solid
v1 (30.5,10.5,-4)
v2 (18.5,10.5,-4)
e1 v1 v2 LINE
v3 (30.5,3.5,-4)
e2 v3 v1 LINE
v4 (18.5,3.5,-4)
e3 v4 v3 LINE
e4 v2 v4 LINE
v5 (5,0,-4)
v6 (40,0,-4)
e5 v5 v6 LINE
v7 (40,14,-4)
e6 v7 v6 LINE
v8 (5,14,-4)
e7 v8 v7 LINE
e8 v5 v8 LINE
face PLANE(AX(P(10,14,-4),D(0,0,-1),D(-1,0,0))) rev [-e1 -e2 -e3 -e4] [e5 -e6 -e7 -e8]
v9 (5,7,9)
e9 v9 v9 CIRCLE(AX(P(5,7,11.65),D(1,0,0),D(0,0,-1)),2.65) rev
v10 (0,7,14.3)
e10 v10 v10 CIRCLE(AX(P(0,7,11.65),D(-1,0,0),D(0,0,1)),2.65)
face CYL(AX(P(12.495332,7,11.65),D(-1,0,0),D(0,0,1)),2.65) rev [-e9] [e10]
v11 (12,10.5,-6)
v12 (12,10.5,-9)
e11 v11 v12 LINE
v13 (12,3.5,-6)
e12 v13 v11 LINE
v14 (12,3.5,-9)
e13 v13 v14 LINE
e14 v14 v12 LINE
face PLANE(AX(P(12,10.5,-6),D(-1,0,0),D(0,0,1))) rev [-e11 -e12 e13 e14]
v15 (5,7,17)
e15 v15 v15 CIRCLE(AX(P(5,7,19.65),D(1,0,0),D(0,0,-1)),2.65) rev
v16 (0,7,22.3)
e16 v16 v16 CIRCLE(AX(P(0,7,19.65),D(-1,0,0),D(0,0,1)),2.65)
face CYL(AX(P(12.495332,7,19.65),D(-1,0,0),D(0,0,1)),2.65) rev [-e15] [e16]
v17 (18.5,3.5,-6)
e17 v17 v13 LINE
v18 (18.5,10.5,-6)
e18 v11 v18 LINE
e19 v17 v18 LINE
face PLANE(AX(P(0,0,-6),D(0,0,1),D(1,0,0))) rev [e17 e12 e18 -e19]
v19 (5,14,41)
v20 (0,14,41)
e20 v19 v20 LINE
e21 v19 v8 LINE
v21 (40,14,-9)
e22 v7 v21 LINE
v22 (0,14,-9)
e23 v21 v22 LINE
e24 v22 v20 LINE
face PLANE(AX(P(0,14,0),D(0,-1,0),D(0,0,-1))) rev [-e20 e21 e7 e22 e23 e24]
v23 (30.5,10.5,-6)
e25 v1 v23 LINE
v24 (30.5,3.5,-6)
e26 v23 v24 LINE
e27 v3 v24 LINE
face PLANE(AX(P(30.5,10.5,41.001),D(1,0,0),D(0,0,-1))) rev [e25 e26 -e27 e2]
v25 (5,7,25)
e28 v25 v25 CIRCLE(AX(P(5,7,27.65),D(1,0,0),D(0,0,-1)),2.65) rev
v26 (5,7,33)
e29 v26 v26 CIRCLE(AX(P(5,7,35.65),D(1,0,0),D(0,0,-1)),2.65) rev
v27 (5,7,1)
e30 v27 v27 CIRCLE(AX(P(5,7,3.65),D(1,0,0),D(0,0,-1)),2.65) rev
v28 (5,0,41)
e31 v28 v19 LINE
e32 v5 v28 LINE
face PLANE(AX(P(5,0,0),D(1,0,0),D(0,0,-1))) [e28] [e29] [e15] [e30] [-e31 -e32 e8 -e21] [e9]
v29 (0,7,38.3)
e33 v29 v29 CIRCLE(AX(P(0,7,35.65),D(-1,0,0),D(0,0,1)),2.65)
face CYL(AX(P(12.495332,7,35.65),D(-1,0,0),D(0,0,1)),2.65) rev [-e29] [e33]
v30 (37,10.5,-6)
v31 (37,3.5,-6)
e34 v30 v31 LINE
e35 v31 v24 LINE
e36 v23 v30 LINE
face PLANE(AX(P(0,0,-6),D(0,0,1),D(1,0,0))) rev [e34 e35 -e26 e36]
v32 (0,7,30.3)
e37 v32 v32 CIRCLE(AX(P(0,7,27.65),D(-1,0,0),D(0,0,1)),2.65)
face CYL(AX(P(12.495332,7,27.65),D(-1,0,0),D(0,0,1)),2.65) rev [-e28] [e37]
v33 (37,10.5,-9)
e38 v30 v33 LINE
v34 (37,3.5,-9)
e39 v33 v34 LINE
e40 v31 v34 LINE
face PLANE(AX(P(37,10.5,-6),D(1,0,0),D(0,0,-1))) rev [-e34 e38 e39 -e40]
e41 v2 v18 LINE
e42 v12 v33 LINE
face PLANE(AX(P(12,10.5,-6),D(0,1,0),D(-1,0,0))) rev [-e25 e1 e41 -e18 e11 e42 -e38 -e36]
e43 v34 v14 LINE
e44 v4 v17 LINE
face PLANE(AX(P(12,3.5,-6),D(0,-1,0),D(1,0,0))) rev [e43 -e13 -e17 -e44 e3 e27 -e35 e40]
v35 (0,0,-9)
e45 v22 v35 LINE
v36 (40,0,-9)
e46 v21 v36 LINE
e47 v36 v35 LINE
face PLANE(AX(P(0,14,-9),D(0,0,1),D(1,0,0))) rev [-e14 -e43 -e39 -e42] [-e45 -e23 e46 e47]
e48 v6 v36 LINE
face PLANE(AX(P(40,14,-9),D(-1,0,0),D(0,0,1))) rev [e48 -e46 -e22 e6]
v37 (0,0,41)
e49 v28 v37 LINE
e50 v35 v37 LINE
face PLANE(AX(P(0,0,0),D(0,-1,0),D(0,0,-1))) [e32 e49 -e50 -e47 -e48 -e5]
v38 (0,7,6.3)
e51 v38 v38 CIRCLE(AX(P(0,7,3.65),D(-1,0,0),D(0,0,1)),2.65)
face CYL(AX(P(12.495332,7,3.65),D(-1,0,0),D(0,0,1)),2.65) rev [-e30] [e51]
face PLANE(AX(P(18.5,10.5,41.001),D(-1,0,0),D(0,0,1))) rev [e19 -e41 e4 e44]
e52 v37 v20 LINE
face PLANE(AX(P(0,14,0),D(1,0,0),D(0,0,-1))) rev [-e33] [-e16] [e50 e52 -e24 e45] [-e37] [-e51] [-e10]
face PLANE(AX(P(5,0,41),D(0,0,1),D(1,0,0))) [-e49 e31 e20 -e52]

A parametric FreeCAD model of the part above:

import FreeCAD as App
import Part
import Sketcher
Q = App.Units.Quantity

doc = App.newDocument("Part")
body = doc.addObject("PartDesign::Body", "Body")

# Sketch on XZ plane
sketch1 = body.newObject("Sketcher::SketchObject", "Sketch")
sketch1.AttachmentSupport = (doc.getObject("XZ_Plane"), [""])
sketch1.MapMode = "FlatFace"
sketch1.addGeometry([
    Part.LineSegment(App.Vector(10, 0, 0), App.Vector(10, -4, 0)),  # 0
    Part.LineSegment(App.Vector(10, -4, 0), App.Vector(40, -4, 0)),  # 1
    Part.LineSegment(App.Vector(40, -4, 0), App.Vector(40, -9, 0)),  # 2
    Part.LineSegment(App.Vector(40, -9, 0), App.Vector(0, -9, 0)),  # 3
    Part.LineSegment(App.Vector(0, -9, 0), App.Vector(0, 0, 0)),  # 4
    Part.LineSegment(App.Vector(0, 0, 0), App.Vector(10, 0, 0)),  # 5
], False)
sketch1.addConstraint([
    Sketcher.Constraint("Coincident", 0, 2, 1, 1),
    Sketcher.Constraint("Coincident", 1, 2, 2, 1),
    Sketcher.Constraint("Coincident", 2, 2, 3, 1),
    Sketcher.Constraint("Coincident", 3, 2, 4, 1),
    Sketcher.Constraint("Coincident", 4, 2, 5, 1),
    Sketcher.Constraint("Coincident", 5, 2, 0, 1),
    Sketcher.Constraint("Vertical", 0),
    Sketcher.Constraint("Horizontal", 1),
    Sketcher.Constraint("Vertical", 2),
    Sketcher.Constraint("Horizontal", 3),
    Sketcher.Constraint("Vertical", 4),
    Sketcher.Constraint("Horizontal", 5),
    Sketcher.Constraint("Coincident", 4, 2, -1, 1),
    Sketcher.Constraint("DistanceX", 1, 1, 1, 2, Q("30 mm")),
    Sketcher.Constraint("DistanceX", 3, 2, 3, 1, Q("40 mm")),
    Sketcher.Constraint("DistanceY", 0, 2, 0, 1, Q("4 mm")),
    Sketcher.Constraint("DistanceY", 2, 2, 2, 1, Q("5 mm")),
])
pad1 = body.newObject("PartDesign::Pad", "Pad")
pad1.Profile = sketch1
pad1.Length = 14
pad1.Reversed = True

# Sketch on YZ plane
sketch2 = body.newObject("Sketcher::SketchObject", "Sketch001")
sketch2.AttachmentSupport = (doc.getObject("YZ_Plane"), [""])
sketch2.MapMode = "FlatFace"
sketch2.addGeometry([
    Part.LineSegment(App.Vector(14, 0, 0), App.Vector(0, 0, 0)),
    Part.LineSegment(App.Vector(0, 0, 0), App.Vector(0, 41, 0)),
    Part.LineSegment(App.Vector(0, 41, 0), App.Vector(14, 41, 0)),
    Part.LineSegment(App.Vector(14, 41, 0), App.Vector(14, 0, 0)),
], False)
sketch2.addConstraint([
    Sketcher.Constraint("Coincident", 0, 2, 1, 1),
    Sketcher.Constraint("Coincident", 1, 2, 2, 1),
    Sketcher.Constraint("Coincident", 2, 2, 3, 1),
    Sketcher.Constraint("Coincident", 3, 2, 0, 1),
    Sketcher.Constraint("Horizontal", 0),
    Sketcher.Constraint("Vertical", 1),
    Sketcher.Constraint("Horizontal", 2),
    Sketcher.Constraint("Vertical", 3),
    Sketcher.Constraint("Coincident", 0, 2, -1, 1),
    Sketcher.Constraint("DistanceX", 0, 2, 0, 1, Q("14 mm")),
    Sketcher.Constraint("DistanceY", 1, 1, 1, 2, Q("41 mm")),
])
pad2 = body.newObject("PartDesign::Pad", "Pad001")
pad2.Profile = sketch2
pad2.Length = 5

# Sketch on YZ plane
sketch3 = body.newObject("Sketcher::SketchObject", "Sketch002")
sketch3.AttachmentSupport = (doc.getObject("YZ_Plane"), [""])
sketch3.MapMode = "FlatFace"
sketch3.addGeometry([
    Part.Circle(App.Vector(7, -4.3, 0), App.Vector(0, 0, 1), 2.6),  # 0
    Part.Circle(App.Vector(7, 3.6, 0), App.Vector(0, 0, 1), 2.6),  # 1
    Part.Circle(App.Vector(7, 11.7, 0), App.Vector(0, 0, 1), 2.6),  # 2
    Part.Circle(App.Vector(7, 19.6, 0), App.Vector(0, 0, 1), 2.6),  # 3
    Part.Circle(App.Vector(7, 27.6, 0), App.Vector(0, 0, 1), 2.6),  # 4
    Part.Circle(App.Vector(7, 35.6, 0), App.Vector(0, 0, 1), 2.6),  # 5
], False)
sketch3.addConstraint([
    Sketcher.Constraint("Equal", 0, 1),
    Sketcher.Constraint("Equal", 1, 2),
    Sketcher.Constraint("Equal", 2, 3),
    Sketcher.Constraint("Equal", 3, 4),
    Sketcher.Constraint("Equal", 4, 5),
    Sketcher.Constraint("Vertical", 0, 3, 1, 3),
    Sketcher.Constraint("Vertical", 1, 3, 2, 3),
    Sketcher.Constraint("Vertical", 2, 3, 3, 3),
    Sketcher.Constraint("Vertical", 3, 3, 4, 3),
    Sketcher.Constraint("Vertical", 4, 3, 5, 3),
    Sketcher.Constraint("Diameter", 0, Q("5.3 mm")),
    Sketcher.Constraint("DistanceX", -1, 1, 0, 3, Q("7 mm")),
    Sketcher.Constraint("DistanceY", 0, 3, 1, 3, Q("8 mm")),
    Sketcher.Constraint("DistanceY", 1, 3, 2, 3, Q("8 mm")),
    Sketcher.Constraint("DistanceY", 2, 3, 3, 3, Q("8 mm")),
    Sketcher.Constraint("DistanceY", 3, 3, 4, 3, Q("8 mm")),
    Sketcher.Constraint("DistanceY", 4, 3, 5, 3, Q("8 mm")),
    Sketcher.Constraint("DistanceY", 0, 3, -1, 1, Q("4.35 mm")),
])
pocket1 = body.newObject("PartDesign::Pocket", "Pocket")
pocket1.Profile = sketch3
pocket1.Length = 5
pocket1.Reversed = True

# Sketch on XZ plane
sketch4 = body.newObject("Sketcher::SketchObject", "Sketch003")
sketch4.AttachmentSupport = (doc.getObject("XZ_Plane"), [""])
sketch4.MapMode = "FlatFace"
sketch4.AttachmentOffset = App.Placement(App.Vector(0, 0, -14), App.Rotation())
sketch4.addGeometry([
    Part.LineSegment(App.Vector(5, -4, 0), App.Vector(5, 0, 0)),
    Part.LineSegment(App.Vector(5, 0, 0), App.Vector(10, 0, 0)),
    Part.LineSegment(App.Vector(10, 0, 0), App.Vector(10, -4, 0)),
    Part.LineSegment(App.Vector(10, -4, 0), App.Vector(5, -4, 0)),
], False)
sketch4.addConstraint([
    Sketcher.Constraint("Coincident", 0, 2, 1, 1),
    Sketcher.Constraint("Coincident", 1, 2, 2, 1),
    Sketcher.Constraint("Coincident", 2, 2, 3, 1),
    Sketcher.Constraint("Coincident", 3, 2, 0, 1),
    Sketcher.Constraint("Vertical", 0),
    Sketcher.Constraint("Horizontal", 1),
    Sketcher.Constraint("Vertical", 2),
    Sketcher.Constraint("Horizontal", 3),
    Sketcher.Constraint("PointOnObject", 0, 2, -1),
    Sketcher.Constraint("DistanceX", 1, 1, 1, 2, Q("5 mm")),
    Sketcher.Constraint("DistanceY", 0, 1, 0, 2, Q("4 mm")),
    Sketcher.Constraint("DistanceX", -1, 1, 0, 2, Q("5 mm")),
])
pocket2 = body.newObject("PartDesign::Pocket", "Pocket001")
pocket2.Profile = sketch4
pocket2.Type = "ThroughAll"
pocket2.Reversed = True

# Sketch on YZ plane
sketch5 = body.newObject("Sketcher::SketchObject", "Sketch004")
sketch5.AttachmentSupport = (doc.getObject("YZ_Plane"), [""])
sketch5.MapMode = "FlatFace"
sketch5.addGeometry(Part.Circle(App.Vector(7, -4.3, 0), App.Vector(0, 0, 1), 2.6), False)
sketch5.addConstraint([
    Sketcher.Constraint("Diameter", 0, Q("5.3 mm")),
    Sketcher.Constraint("DistanceX", -1, 1, 0, 3, Q("7 mm")),
    Sketcher.Constraint("DistanceY", 0, 3, -1, 1, Q("4.35 mm")),
])
pad3 = body.newObject("PartDesign::Pad", "Pad002")
pad3.Profile = sketch5
pad3.Length = 5

# Sketch on XY plane
sketch6 = body.newObject("Sketcher::SketchObject", "Sketch005")
sketch6.AttachmentSupport = (doc.getObject("XY_Plane"), [""])
sketch6.MapMode = "FlatFace"
sketch6.AttachmentOffset = App.Placement(App.Vector(0, 0, -9), App.Rotation())
sketch6.addGeometry([
    Part.LineSegment(App.Vector(37, 10, 0), App.Vector(37, 4, 0)),
    Part.LineSegment(App.Vector(37, 4, 0), App.Vector(12, 4, 0)),
    Part.LineSegment(App.Vector(12, 4, 0), App.Vector(12, 10, 0)),
    Part.LineSegment(App.Vector(12, 10, 0), App.Vector(37, 10, 0)),
], False)
sketch6.addConstraint([
    Sketcher.Constraint("Coincident", 0, 2, 1, 1),
    Sketcher.Constraint("Coincident", 1, 2, 2, 1),
    Sketcher.Constraint("Coincident", 2, 2, 3, 1),
    Sketcher.Constraint("Coincident", 3, 2, 0, 1),
    Sketcher.Constraint("Vertical", 0),
    Sketcher.Constraint("Horizontal", 1),
    Sketcher.Constraint("Vertical", 2),
    Sketcher.Constraint("Horizontal", 3),
    Sketcher.Constraint("DistanceX", 1, 2, 1, 1, Q("25 mm")),
    Sketcher.Constraint("DistanceY", 0, 2, 0, 1, Q("7 mm")),
    Sketcher.Constraint("DistanceX", -1, 1, 0, 2, Q("37 mm")),
    Sketcher.Constraint("DistanceY", -1, 1, 0, 2, Q("3.5 mm")),
])
pocket3 = body.newObject("PartDesign::Pocket", "Pocket002")
pocket3.Profile = sketch6
pocket3.Length = 3
pocket3.Reversed = True

# Sketch on XY plane
sketch7 = body.newObject("Sketcher::SketchObject", "Sketch006")
sketch7.AttachmentSupport = (doc.getObject("XY_Plane"), [""])
sketch7.MapMode = "FlatFace"
sketch7.AttachmentOffset = App.Placement(App.Vector(0, 0, -6), App.Rotation())
sketch7.addGeometry([
    Part.LineSegment(App.Vector(30, 10, 0), App.Vector(30, 4, 0)),
    Part.LineSegment(App.Vector(30, 4, 0), App.Vector(18, 4, 0)),
    Part.LineSegment(App.Vector(18, 4, 0), App.Vector(18, 10, 0)),
    Part.LineSegment(App.Vector(18, 10, 0), App.Vector(30, 10, 0)),
], False)
sketch7.addConstraint([
    Sketcher.Constraint("Coincident", 0, 2, 1, 1),
    Sketcher.Constraint("Coincident", 1, 2, 2, 1),
    Sketcher.Constraint("Coincident", 2, 2, 3, 1),
    Sketcher.Constraint("Coincident", 3, 2, 0, 1),
    Sketcher.Constraint("Vertical", 0),
    Sketcher.Constraint("Horizontal", 1),
    Sketcher.Constraint("Vertical", 2),
    Sketcher.Constraint("Horizontal", 3),
    Sketcher.Constraint("DistanceX", 1, 2, 1, 1, Q("12 mm")),
    Sketcher.Constraint("DistanceY", 0, 2, 0, 1, Q("7 mm")),
    Sketcher.Constraint("DistanceX", -1, 1, 0, 2, Q("30.5 mm")),
    Sketcher.Constraint("DistanceY", -1, 1, 0, 2, Q("3.5 mm")),
])
pocket4 = body.newObject("PartDesign::Pocket", "Pocket003")
pocket4.Profile = sketch7
pocket4.Type = "UpToFirst"
pocket4.Reversed = True

doc.recompute()
